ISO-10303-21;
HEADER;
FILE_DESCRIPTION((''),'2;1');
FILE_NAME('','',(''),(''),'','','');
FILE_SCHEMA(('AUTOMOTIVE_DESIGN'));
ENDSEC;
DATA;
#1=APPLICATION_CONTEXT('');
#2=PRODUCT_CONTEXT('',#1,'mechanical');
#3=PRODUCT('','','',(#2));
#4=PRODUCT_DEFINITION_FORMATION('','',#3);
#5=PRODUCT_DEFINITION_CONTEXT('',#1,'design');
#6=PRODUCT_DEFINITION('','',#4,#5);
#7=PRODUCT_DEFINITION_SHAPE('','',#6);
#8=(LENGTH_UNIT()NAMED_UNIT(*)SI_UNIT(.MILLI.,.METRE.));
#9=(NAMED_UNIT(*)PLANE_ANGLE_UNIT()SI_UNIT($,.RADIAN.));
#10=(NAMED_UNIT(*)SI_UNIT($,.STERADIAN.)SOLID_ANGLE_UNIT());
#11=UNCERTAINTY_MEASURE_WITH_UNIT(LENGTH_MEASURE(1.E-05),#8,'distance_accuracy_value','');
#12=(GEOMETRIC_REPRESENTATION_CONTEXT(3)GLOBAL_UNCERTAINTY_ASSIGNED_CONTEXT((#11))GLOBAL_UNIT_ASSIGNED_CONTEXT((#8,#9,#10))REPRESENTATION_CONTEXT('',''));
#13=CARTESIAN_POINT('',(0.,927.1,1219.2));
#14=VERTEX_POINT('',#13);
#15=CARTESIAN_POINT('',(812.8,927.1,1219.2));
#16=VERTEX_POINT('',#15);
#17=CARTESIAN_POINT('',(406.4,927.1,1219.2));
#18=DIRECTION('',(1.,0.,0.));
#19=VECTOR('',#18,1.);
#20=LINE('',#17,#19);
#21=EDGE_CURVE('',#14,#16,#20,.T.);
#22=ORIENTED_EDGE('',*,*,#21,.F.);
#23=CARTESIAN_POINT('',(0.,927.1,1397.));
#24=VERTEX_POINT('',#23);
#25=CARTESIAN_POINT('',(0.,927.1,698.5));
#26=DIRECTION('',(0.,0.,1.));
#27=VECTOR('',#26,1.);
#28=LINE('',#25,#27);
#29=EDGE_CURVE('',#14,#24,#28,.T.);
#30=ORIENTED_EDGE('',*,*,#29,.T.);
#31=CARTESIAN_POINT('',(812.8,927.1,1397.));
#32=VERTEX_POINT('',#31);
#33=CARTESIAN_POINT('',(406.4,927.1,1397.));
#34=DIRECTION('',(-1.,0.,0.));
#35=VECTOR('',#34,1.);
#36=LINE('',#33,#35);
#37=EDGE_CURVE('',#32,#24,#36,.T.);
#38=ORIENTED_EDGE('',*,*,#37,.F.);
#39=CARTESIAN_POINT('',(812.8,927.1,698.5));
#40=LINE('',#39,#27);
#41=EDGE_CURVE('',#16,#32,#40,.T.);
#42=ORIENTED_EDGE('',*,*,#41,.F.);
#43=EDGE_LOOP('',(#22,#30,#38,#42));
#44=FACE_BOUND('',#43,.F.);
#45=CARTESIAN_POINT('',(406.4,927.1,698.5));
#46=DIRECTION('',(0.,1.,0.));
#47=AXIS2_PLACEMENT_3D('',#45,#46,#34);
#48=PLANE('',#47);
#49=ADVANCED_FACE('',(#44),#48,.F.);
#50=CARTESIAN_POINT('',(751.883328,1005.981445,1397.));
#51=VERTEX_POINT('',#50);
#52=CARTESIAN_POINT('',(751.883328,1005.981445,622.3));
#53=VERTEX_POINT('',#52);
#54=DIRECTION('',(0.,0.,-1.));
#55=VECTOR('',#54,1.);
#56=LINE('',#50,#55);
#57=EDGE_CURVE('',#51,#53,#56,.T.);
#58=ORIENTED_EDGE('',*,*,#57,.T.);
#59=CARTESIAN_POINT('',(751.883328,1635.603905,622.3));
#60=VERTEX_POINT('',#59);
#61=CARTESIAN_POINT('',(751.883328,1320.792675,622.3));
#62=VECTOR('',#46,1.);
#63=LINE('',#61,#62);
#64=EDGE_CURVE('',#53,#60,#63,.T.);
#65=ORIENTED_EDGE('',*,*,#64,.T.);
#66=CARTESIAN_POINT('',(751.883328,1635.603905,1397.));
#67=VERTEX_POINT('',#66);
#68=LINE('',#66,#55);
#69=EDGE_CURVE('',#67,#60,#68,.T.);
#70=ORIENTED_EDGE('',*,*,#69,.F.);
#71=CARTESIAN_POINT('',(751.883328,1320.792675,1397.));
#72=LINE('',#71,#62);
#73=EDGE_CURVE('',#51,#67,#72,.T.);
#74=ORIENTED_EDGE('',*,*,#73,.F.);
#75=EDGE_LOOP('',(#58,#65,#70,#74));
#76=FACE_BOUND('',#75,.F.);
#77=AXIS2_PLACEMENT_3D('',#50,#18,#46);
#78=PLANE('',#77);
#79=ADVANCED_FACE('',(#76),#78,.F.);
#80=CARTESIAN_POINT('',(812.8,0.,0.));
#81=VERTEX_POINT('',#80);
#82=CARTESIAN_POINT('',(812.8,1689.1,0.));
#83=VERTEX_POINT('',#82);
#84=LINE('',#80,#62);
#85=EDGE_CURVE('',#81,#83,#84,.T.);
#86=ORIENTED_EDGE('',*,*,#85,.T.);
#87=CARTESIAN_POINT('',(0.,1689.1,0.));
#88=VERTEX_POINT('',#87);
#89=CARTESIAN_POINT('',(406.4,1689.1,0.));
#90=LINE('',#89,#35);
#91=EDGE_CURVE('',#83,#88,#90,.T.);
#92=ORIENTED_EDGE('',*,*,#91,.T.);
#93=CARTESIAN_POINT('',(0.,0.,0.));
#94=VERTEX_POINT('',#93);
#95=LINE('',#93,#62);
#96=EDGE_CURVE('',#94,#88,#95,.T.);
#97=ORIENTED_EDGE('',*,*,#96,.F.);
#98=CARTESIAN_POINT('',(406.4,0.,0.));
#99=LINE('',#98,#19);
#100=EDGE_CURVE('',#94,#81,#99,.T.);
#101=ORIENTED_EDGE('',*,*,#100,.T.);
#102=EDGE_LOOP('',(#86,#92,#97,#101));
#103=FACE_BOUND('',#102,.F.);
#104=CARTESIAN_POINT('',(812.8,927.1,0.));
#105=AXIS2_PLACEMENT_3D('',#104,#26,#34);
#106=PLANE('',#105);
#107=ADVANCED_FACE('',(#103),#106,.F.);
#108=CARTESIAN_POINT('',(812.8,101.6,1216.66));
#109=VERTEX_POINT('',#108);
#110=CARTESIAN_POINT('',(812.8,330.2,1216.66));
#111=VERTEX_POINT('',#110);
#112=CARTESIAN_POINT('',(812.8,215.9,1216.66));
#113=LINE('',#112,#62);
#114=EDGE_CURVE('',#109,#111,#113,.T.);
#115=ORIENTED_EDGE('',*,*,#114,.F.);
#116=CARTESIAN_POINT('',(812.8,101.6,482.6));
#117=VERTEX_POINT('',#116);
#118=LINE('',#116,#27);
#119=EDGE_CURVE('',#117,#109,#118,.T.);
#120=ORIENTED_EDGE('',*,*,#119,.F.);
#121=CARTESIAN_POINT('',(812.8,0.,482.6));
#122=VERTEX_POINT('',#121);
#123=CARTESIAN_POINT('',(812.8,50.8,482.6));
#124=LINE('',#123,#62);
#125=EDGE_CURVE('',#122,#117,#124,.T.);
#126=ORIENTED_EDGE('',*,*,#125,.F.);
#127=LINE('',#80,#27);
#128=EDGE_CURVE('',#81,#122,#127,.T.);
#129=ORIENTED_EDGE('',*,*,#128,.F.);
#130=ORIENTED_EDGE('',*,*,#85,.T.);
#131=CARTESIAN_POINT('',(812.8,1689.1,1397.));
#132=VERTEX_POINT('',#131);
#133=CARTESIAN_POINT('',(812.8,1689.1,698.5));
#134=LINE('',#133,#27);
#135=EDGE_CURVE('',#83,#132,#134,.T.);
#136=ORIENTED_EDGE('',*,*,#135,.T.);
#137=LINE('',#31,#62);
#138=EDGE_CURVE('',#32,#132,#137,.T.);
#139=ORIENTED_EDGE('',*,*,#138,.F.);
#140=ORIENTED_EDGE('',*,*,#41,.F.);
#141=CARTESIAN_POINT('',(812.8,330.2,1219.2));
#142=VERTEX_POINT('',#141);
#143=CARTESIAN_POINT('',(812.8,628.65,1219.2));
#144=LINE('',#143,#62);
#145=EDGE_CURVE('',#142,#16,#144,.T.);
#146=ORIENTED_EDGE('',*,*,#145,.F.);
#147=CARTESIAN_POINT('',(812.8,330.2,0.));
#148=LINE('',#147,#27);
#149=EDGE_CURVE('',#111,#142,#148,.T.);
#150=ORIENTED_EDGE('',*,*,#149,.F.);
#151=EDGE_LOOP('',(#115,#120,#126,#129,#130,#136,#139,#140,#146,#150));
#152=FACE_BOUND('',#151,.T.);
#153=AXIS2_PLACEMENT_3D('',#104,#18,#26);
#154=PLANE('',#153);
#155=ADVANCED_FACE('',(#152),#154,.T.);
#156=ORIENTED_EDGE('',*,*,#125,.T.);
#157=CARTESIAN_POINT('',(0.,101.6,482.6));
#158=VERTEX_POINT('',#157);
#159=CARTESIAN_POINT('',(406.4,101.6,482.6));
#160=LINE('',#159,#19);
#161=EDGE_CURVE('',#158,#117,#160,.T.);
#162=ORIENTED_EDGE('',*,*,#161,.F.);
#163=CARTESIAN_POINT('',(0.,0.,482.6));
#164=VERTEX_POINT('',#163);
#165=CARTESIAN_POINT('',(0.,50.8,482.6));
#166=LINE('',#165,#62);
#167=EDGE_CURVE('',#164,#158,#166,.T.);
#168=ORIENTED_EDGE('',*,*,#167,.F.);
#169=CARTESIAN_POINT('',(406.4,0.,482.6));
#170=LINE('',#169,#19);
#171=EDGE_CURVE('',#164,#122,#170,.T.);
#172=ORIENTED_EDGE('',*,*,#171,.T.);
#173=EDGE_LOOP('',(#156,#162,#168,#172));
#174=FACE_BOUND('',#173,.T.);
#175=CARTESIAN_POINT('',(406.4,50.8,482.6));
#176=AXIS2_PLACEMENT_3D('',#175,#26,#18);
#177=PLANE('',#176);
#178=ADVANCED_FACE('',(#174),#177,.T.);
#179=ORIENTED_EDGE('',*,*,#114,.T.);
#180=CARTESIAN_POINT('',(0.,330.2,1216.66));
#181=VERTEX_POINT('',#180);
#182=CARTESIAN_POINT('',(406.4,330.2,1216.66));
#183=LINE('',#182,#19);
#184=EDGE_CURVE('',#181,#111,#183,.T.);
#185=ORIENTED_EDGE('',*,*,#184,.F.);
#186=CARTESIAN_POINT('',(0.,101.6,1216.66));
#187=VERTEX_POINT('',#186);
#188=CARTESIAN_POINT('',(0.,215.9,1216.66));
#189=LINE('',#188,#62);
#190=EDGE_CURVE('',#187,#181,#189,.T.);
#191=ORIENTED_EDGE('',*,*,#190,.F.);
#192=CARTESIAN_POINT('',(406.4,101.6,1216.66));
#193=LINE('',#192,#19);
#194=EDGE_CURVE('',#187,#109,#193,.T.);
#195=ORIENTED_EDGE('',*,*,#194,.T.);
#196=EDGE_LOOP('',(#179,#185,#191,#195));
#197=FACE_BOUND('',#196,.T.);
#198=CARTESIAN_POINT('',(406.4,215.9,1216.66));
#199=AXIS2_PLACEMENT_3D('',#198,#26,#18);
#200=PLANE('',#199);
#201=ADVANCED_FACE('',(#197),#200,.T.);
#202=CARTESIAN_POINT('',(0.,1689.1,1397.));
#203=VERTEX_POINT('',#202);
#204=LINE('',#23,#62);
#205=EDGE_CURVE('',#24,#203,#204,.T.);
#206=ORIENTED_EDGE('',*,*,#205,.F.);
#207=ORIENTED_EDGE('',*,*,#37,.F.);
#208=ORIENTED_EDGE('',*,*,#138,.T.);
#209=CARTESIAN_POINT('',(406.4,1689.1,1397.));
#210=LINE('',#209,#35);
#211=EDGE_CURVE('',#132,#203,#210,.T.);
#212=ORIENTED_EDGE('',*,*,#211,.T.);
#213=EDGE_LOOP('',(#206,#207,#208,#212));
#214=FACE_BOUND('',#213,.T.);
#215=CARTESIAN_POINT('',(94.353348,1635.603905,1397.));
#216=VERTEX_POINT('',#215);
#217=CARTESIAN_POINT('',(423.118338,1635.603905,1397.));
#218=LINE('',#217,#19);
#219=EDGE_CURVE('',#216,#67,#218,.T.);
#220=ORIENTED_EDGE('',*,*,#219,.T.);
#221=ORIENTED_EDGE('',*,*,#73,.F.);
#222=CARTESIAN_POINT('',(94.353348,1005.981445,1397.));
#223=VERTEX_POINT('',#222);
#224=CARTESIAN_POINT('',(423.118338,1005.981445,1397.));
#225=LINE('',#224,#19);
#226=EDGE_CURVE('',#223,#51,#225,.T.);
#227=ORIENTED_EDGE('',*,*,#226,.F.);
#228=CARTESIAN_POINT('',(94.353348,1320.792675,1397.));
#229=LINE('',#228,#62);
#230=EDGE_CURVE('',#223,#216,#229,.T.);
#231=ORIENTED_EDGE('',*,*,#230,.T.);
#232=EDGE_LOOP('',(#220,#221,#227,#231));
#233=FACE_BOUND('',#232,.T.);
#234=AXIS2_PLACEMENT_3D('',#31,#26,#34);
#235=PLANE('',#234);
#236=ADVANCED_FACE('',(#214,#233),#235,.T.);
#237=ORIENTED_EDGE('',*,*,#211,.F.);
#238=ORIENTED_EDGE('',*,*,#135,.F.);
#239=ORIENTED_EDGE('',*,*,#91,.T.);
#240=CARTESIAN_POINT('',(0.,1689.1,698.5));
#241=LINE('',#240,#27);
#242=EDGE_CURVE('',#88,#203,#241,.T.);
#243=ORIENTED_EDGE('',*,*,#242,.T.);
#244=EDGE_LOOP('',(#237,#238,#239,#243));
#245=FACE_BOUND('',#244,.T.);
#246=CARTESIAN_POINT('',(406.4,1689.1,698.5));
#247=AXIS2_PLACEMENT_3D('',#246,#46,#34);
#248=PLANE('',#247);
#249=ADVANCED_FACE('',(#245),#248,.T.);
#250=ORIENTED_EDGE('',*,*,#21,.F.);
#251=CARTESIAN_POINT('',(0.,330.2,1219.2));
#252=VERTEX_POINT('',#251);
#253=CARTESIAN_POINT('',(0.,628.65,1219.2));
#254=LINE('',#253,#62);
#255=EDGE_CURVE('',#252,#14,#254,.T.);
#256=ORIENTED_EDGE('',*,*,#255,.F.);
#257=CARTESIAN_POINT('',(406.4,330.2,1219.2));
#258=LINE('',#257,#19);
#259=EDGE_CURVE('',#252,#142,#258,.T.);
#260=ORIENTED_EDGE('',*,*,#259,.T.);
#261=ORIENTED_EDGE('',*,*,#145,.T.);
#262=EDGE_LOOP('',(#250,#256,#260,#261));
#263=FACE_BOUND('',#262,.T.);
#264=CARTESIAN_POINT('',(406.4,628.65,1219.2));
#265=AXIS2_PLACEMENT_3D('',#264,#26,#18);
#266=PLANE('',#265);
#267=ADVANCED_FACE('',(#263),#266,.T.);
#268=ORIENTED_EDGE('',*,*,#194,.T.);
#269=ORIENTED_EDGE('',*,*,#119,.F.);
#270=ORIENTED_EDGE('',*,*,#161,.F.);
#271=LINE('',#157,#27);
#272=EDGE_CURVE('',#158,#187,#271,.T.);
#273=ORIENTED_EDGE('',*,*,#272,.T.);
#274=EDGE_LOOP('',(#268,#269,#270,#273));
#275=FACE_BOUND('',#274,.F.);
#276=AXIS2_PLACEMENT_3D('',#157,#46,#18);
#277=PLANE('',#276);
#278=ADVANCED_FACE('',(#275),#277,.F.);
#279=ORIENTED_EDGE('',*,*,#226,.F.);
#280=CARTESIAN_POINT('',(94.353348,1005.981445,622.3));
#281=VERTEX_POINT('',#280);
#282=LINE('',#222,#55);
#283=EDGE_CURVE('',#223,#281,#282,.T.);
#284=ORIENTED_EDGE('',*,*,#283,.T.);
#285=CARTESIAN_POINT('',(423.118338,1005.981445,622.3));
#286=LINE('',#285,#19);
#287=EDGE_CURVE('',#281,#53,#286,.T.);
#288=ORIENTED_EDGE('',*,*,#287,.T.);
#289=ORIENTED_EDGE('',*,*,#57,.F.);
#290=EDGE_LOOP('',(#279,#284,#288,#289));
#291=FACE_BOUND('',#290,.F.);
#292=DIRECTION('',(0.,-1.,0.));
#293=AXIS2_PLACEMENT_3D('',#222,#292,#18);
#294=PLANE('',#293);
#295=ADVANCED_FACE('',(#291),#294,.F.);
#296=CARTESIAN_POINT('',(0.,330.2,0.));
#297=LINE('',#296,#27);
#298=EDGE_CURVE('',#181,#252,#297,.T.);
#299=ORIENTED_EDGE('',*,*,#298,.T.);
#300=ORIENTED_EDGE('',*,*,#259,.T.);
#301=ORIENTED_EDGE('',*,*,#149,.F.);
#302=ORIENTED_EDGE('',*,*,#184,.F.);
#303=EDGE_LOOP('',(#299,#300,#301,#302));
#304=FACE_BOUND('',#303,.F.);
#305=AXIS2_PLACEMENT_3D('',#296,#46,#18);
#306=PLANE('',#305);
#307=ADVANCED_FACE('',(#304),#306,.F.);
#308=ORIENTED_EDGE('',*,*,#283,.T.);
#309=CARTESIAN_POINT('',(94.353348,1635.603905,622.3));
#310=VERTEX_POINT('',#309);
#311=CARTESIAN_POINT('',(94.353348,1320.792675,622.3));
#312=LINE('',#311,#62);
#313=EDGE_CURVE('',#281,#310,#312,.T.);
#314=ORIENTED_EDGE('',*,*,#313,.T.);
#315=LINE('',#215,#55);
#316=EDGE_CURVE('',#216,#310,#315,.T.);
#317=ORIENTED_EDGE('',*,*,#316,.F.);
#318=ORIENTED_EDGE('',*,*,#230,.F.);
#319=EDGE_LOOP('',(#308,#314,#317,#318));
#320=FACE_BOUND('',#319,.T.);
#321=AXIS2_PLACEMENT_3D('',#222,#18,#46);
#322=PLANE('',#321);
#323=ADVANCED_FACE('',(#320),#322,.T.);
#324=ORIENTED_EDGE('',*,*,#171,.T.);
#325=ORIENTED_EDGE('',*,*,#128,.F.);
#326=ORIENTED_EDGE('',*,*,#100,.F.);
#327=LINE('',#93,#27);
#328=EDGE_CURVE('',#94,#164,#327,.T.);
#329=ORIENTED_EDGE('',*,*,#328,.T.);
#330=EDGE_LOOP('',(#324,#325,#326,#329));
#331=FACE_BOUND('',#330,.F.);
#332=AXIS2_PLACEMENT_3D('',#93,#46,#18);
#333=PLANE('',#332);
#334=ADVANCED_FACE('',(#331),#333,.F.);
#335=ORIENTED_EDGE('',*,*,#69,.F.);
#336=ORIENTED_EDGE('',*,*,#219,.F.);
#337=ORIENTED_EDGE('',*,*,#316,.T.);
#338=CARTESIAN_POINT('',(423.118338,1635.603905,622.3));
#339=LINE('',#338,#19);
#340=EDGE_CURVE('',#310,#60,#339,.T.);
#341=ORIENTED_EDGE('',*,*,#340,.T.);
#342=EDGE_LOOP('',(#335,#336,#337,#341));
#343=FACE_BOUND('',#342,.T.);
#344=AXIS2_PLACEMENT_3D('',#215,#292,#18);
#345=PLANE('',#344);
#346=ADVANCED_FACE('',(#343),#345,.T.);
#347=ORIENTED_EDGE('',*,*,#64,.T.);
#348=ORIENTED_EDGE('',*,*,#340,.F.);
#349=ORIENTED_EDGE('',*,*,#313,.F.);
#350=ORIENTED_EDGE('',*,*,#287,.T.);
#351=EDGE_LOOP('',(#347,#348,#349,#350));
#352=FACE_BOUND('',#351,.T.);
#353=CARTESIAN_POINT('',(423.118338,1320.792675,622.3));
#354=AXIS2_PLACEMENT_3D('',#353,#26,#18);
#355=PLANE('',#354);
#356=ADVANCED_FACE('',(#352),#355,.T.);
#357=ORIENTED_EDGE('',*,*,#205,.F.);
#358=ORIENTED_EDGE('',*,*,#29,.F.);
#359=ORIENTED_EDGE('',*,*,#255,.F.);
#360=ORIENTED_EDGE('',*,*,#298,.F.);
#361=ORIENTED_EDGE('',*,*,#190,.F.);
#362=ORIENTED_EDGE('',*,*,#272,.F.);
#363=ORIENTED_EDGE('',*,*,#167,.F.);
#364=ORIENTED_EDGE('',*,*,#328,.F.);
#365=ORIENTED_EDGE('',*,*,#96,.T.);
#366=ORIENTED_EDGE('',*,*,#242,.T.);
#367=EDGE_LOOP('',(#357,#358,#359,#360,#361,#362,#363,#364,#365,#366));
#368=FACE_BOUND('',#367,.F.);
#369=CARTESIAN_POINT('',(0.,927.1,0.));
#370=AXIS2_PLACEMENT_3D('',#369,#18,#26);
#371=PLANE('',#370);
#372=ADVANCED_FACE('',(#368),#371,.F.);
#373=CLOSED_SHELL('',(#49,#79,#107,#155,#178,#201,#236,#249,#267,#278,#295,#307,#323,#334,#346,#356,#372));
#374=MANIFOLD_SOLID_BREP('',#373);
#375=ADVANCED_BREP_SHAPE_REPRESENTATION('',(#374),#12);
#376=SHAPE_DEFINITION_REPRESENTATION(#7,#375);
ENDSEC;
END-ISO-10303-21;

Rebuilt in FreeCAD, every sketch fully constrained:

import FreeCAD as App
import Part
import Sketcher

V = App.Vector
Q = App.Units.Quantity


def add_polygon(sketch, points):
    """Adds a closed chain of lines whose ends are joined by coincident constraints."""
    first, n = sketch.GeometryCount, len(points)
    for a, b in zip(points, points[1:] + points[:1]):
        sketch.addGeometry(Part.LineSegment(App.Vector(*a, 0), App.Vector(*b, 0)), False)
    for i in range(n):
        sketch.addConstraint(Sketcher.Constraint("Coincident", first + i, 2, first + (i + 1) % n, 1))

doc = App.newDocument("Part")
params = doc.addObject("Spreadsheet::Sheet", "Params")
for row, (alias, value) in enumerate([
    ("sketch1_width", "32 in"),
    ("sketch1_height", "4 in"),
    ("pad1_length", "19 in"),
    ("sketch2_width", "32 in"),
    ("sketch2_height", "9 in"),
    ("pad2_length", "28.9 in"),
    ("pad2_length2", "19 in"),
    ("sketch3_width", "32 in"),
    ("sketch3_height", "23.5 in"),
    ("pad3_length", "48 in"),
    ("sketch4_width", "32 in"),
    ("sketch4_height", "55 in"),
    ("pad4_length", "30 in"),
    ("pocket1_length", "30.5 in"),
], start=1):
    params.set(f"A{row}", alias)
    params.set(f"B{row}", "=" + value)
    params.setAlias(f"B{row}", alias)

body = doc.addObject("PartDesign::Body", "Body")

sketch1 = body.newObject("Sketcher::SketchObject", "Sketch")
sketch1.AttachmentSupport = (doc.getObject("XY_Plane"), [""])
sketch1.MapMode = "FlatFace"
add_polygon(sketch1, [(0, 102), (0, 0), (813, 0), (813, 102)])
sketch1.addConstraint([
    Sketcher.Constraint("Vertical", 0),
    Sketcher.Constraint("Horizontal", 1),
    Sketcher.Constraint("Vertical", 2),
    Sketcher.Constraint("Horizontal", 3),
    Sketcher.Constraint("Coincident", 0, 2, -1, 1),
    Sketcher.Constraint("DistanceX", 1, 1, 1, 2, Q("32 in")),
    Sketcher.Constraint("DistanceY", 0, 2, 0, 1, Q("4 in")),
])
sketch1.setExpression("Constraints[9]", "Params.sketch1_width")
sketch1.setExpression("Constraints[10]", "Params.sketch1_height")
pad1 = body.newObject("PartDesign::Pad", "Pad")
pad1.Profile = sketch1
pad1.setExpression("Length", "Params.pad1_length")

sketch2 = body.newObject("Sketcher::SketchObject", "Sketch001")
sketch2.AttachmentSupport = (doc.getObject("XY_Plane"), [""])
sketch2.MapMode = "FlatFace"
sketch2.AttachmentOffset = App.Placement(V(0, 0, 19 * 25.4), App.Rotation())
add_polygon(sketch2, [(0, 330), (0, 102), (813, 102), (813, 330)])
sketch2.addConstraint([
    Sketcher.Constraint("Vertical", 0),
    Sketcher.Constraint("Horizontal", 1),
    Sketcher.Constraint("Vertical", 2),
    Sketcher.Constraint("Horizontal", 3),
    Sketcher.Constraint("PointOnObject", 0, 2, -2),
    Sketcher.Constraint("DistanceX", 1, 1, 1, 2, Q("32 in")),
    Sketcher.Constraint("DistanceY", 0, 2, 0, 1, Q("9 in")),
    Sketcher.Constraint("DistanceY", -1, 1, 0, 2, Q("4 in")),
])
sketch2.setExpression("Constraints[9]", "Params.sketch2_width")
sketch2.setExpression("Constraints[10]", "Params.sketch2_height")
pad2 = body.newObject("PartDesign::Pad", "Pad001")
pad2.Profile = sketch2
pad2.Type = "TwoLengths"
pad2.setExpression("Length", "Params.pad2_length")
pad2.setExpression("Length2", "Params.pad2_length2")

sketch3 = body.newObject("Sketcher::SketchObject", "Sketch002")
sketch3.AttachmentSupport = (doc.getObject("XY_Plane"), [""])
sketch3.MapMode = "FlatFace"
add_polygon(sketch3, [(0, 927), (0, 330), (813, 330), (813, 927)])
sketch3.addConstraint([
    Sketcher.Constraint("Vertical", 0),
    Sketcher.Constraint("Horizontal", 1),
    Sketcher.Constraint("Vertical", 2),
    Sketcher.Constraint("Horizontal", 3),
    Sketcher.Constraint("PointOnObject", 0, 2, -2),
    Sketcher.Constraint("DistanceX", 1, 1, 1, 2, Q("32 in")),
    Sketcher.Constraint("DistanceY", 0, 2, 0, 1, Q("23.5 in")),
    Sketcher.Constraint("DistanceY", -1, 1, 0, 2, Q("13 in")),
])
sketch3.setExpression("Constraints[9]", "Params.sketch3_width")
sketch3.setExpression("Constraints[10]", "Params.sketch3_height")
pad3 = body.newObject("PartDesign::Pad", "Pad002")
pad3.Profile = sketch3
pad3.setExpression("Length", "Params.pad3_length")

sketch4 = body.newObject("Sketcher::SketchObject", "Sketch003")
sketch4.AttachmentSupport = (doc.getObject("XZ_Plane"), [""])
sketch4.MapMode = "FlatFace"
sketch4.AttachmentOffset = App.Placement(V(0, 0, -36.5 * 25.4), App.Rotation())
add_polygon(sketch4, [(813, 1397), (813, 0), (0, 0), (0, 1397)])
sketch4.addConstraint([
    Sketcher.Constraint("Vertical", 0),
    Sketcher.Constraint("Horizontal", 1),
    Sketcher.Constraint("Vertical", 2),
    Sketcher.Constraint("Horizontal", 3),
    Sketcher.Constraint("Coincident", 1, 2, -1, 1),
    Sketcher.Constraint("DistanceX", 1, 2, 1, 1, Q("32 in")),
    Sketcher.Constraint("DistanceY", 0, 2, 0, 1, Q("55 in")),
])
sketch4.setExpression("Constraints[9]", "Params.sketch4_width")
sketch4.setExpression("Constraints[10]", "Params.sketch4_height")
pad4 = body.newObject("PartDesign::Pad", "Pad003")
pad4.Profile = sketch4
pad4.setExpression("Length", "Params.pad4_length")
pad4.Reversed = True

sketch5 = body.newObject("Sketcher::SketchObject", "Sketch004")
sketch5.AttachmentSupport = (doc.getObject("XY_Plane"), [""])
sketch5.MapMode = "FlatFace"
sketch5.AttachmentOffset = App.Placement(V(0, 0, 55 * 25.4), App.Rotation())
add_polygon(sketch5, [(94, 1636), (94, 1006), (752, 1006), (752, 1636)])
sketch5.addConstraint([
    Sketcher.Constraint("Vertical", 0),
    Sketcher.Constraint("Horizontal", 1),
    Sketcher.Constraint("Vertical", 2),
    Sketcher.Constraint("Horizontal", 3),
    Sketcher.Constraint("DistanceX", 1, 1, 1, 2, 657.52998),
    Sketcher.Constraint("DistanceY", 0, 2, 0, 1, 629.62246),
    Sketcher.Constraint("DistanceX", -1, 1, 1, 2, 751.883328),
    Sketcher.Constraint("DistanceY", -1, 1, 0, 2, 1005.981445),
])
pocket1 = body.newObject("PartDesign::Pocket", "Pocket")
pocket1.Profile = sketch5
pocket1.setExpression("Length", "Params.pocket1_length")

doc.recompute()
